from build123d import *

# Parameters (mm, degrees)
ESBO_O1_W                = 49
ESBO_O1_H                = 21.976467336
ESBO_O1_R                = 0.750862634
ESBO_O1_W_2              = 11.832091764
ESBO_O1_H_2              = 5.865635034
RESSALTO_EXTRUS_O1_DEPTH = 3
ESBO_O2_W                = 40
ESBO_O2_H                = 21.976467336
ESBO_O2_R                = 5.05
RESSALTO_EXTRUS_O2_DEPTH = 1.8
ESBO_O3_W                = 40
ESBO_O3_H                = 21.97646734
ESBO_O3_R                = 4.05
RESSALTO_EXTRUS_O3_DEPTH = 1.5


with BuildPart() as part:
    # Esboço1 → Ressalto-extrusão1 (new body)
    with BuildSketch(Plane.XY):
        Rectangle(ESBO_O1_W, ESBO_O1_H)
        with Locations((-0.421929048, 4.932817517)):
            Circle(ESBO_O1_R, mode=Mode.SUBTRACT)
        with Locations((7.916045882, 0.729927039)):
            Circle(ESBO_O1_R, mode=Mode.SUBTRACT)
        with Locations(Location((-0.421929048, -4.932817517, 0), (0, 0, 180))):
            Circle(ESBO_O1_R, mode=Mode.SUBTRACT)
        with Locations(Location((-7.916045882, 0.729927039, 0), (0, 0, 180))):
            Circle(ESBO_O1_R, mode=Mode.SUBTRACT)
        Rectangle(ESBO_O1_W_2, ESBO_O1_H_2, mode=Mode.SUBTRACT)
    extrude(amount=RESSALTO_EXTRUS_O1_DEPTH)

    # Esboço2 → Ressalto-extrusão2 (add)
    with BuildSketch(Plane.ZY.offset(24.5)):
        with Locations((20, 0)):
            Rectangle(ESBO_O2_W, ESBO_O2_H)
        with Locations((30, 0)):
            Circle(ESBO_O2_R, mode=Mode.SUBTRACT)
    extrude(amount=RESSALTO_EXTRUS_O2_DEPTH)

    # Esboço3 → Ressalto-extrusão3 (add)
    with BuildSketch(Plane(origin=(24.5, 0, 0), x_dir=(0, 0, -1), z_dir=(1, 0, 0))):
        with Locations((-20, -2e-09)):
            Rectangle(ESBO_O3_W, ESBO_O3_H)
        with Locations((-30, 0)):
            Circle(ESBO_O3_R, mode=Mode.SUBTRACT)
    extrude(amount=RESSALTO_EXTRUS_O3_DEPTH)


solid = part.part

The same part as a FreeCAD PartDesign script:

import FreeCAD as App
import Part
import Sketcher
from FreeCAD import Vector

doc = App.newDocument("Part")
params = doc.addObject("Spreadsheet::Sheet", "Params")
for row, (alias, value) in enumerate([
    ("sketch1_width", "49 mm"),
    ("pad1_length", "3 mm"),
    ("sketch2_diameter", "10.1 mm"),
    ("sketch2_height", "40 mm"),
    ("pad2_length", "1.8 mm"),
    ("sketch3_diameter", "8.1 mm"),
    ("sketch3_height", "40 mm"),
    ("pad3_length", "1.5 mm"),
], start=1):
    params.set(f"A{row}", alias)
    params.set(f"B{row}", "=" + value)
    params.setAlias(f"B{row}", alias)

body = doc.addObject("PartDesign::Body", "Body")

# Sketch on XY plane
sketch1 = body.newObject("Sketcher::SketchObject", "Sketch")
sketch1.AttachmentSupport = (doc.getObject("XY_Plane"), [""])
sketch1.MapMode = "FlatFace"
sketch1.addGeometry(Part.LineSegment(Vector(-24.5, 11, 0), Vector(-24.5, -11, 0)), False)
sketch1.addGeometry(Part.LineSegment(Vector(-24.5, -11, 0), Vector(24.5, -11, 0)), False)
sketch1.addGeometry(Part.LineSegment(Vector(24.5, -11, 0), Vector(24.5, 11, 0)), False)
sketch1.addGeometry(Part.LineSegment(Vector(24.5, 11, 0), Vector(-24.5, 11, 0)), False)
sketch1.addGeometry(Part.Circle(Vector(-0.4, -4.9, 0), Vector(0, 0, 1), 0.8), False)
sketch1.addGeometry(Part.Circle(Vector(-7.9, 0.7, 0), Vector(0, 0, 1), 0.8), False)
sketch1.addGeometry(Part.Circle(Vector(-0.4, 4.9, 0), Vector(0, 0, 1), 0.8), False)
sketch1.addGeometry(Part.LineSegment(Vector(5.9, -2.9, 0), Vector(-5.9, -2.9, 0)), False)
sketch1.addGeometry(Part.LineSegment(Vector(-5.9, -2.9, 0), Vector(-5.9, 2.9, 0)), False)
sketch1.addGeometry(Part.LineSegment(Vector(-5.9, 2.9, 0), Vector(5.9, 2.9, 0)), False)
sketch1.addGeometry(Part.LineSegment(Vector(5.9, 2.9, 0), Vector(5.9, -2.9, 0)), False)
sketch1.addGeometry(Part.Circle(Vector(7.9, 0.7, 0), Vector(0, 0, 1), 0.8), False)
sketch1.addConstraint(Sketcher.Constraint("Coincident", 0, 2, 1, 1))
sketch1.addConstraint(Sketcher.Constraint("Coincident", 1, 2, 2, 1))
sketch1.addConstraint(Sketcher.Constraint("Coincident", 2, 2, 3, 1))
sketch1.addConstraint(Sketcher.Constraint("Coincident", 3, 2, 0, 1))
sketch1.addConstraint(Sketcher.Constraint("Coincident", 7, 2, 8, 1))
sketch1.addConstraint(Sketcher.Constraint("Coincident", 8, 2, 9, 1))
sketch1.addConstraint(Sketcher.Constraint("Coincident", 9, 2, 10, 1))
sketch1.addConstraint(Sketcher.Constraint("Coincident", 10, 2, 7, 1))
sketch1.addConstraint(Sketcher.Constraint("Vertical", 0))
sketch1.addConstraint(Sketcher.Constraint("Horizontal", 1))
sketch1.addConstraint(Sketcher.Constraint("Vertical", 2))
sketch1.addConstraint(Sketcher.Constraint("Horizontal", 3))
sketch1.addConstraint(Sketcher.Constraint("Horizontal", 7))
sketch1.addConstraint(Sketcher.Constraint("Vertical", 8))
sketch1.addConstraint(Sketcher.Constraint("Horizontal", 9))
sketch1.addConstraint(Sketcher.Constraint("Vertical", 10))
sketch1.addConstraint(Sketcher.Constraint("Equal", 4, 5))
sketch1.addConstraint(Sketcher.Constraint("Equal", 5, 6))
sketch1.addConstraint(Sketcher.Constraint("Equal", 6, 11))
sketch1.addConstraint(Sketcher.Constraint("Symmetric", 0, 2, 2, 2, -1, 1))
sketch1.addConstraint(Sketcher.Constraint("Symmetric", 7, 2, 9, 2, -1, 1))
sketch1.addConstraint(Sketcher.Constraint("Symmetric", 5, 3, 11, 3, -2))
sketch1.addConstraint(Sketcher.Constraint("Symmetric", 4, 3, 6, 3, -1))
sketch1.addConstraint(Sketcher.Constraint("DistanceX", 1, 1, 1, 2, 49.0))
sketch1.addConstraint(Sketcher.Constraint("DistanceX", 5, 3, 7, 2, 2.0))
sketch1.addConstraint(Sketcher.Constraint("DistanceY", 4, 3, 7, 2, 2.0))
sketch1.addConstraint(Sketcher.Constraint("Diameter", 4, 1.501725))
sketch1.addConstraint(Sketcher.Constraint("DistanceX", 7, 2, 7, 1, 11.832092))
sketch1.addConstraint(Sketcher.Constraint("DistanceY", 0, 2, 0, 1, 21.976467))
sketch1.addConstraint(Sketcher.Constraint("DistanceY", 8, 1, 8, 2, 5.865635))
sketch1.addConstraint(Sketcher.Constraint("DistanceX", 4, 3, -1, 1, 0.421929))
sketch1.addConstraint(Sketcher.Constraint("DistanceY", 5, 3, 6, 3, 4.20289))
sketch1.setExpression("Constraints[23]", "Params.sketch1_width")
pad1 = body.newObject("PartDesign::Pad", "Pad")
pad1.Profile = sketch1
pad1.setExpression("Length", "Params.pad1_length")

# Sketch on YZ plane
sketch2 = body.newObject("Sketcher::SketchObject", "Sketch001")
sketch2.AttachmentSupport = (doc.getObject("YZ_Plane"), [""])
sketch2.MapMode = "FlatFace"
sketch2.AttachmentOffset = App.Placement(Vector(0, 0, -24.5), App.Rotation())
sketch2.addGeometry(Part.LineSegment(Vector(11, 0, 0), Vector(-11, 0, 0)), False)
sketch2.addGeometry(Part.LineSegment(Vector(-11, 0, 0), Vector(-11, 40, 0)), False)
sketch2.addGeometry(Part.LineSegment(Vector(-11, 40, 0), Vector(11, 40, 0)), False)
sketch2.addGeometry(Part.LineSegment(Vector(11, 40, 0), Vector(11, 0, 0)), False)
sketch2.addGeometry(Part.Circle(Vector(0, 30, 0), Vector(0, 0, 1), 5), False)
sketch2.addConstraint(Sketcher.Constraint("Coincident", 0, 2, 1, 1))
sketch2.addConstraint(Sketcher.Constraint("Coincident", 1, 2, 2, 1))
sketch2.addConstraint(Sketcher.Constraint("Coincident", 2, 2, 3, 1))
sketch2.addConstraint(Sketcher.Constraint("Coincident", 3, 2, 0, 1))
sketch2.addConstraint(Sketcher.Constraint("Horizontal", 0))
sketch2.addConstraint(Sketcher.Constraint("Vertical", 1))
sketch2.addConstraint(Sketcher.Constraint("Horizontal", 2))
sketch2.addConstraint(Sketcher.Constraint("Vertical", 3))
sketch2.addConstraint(Sketcher.Constraint("Symmetric", 0, 2, 3, 2, -1, 1))
sketch2.addConstraint(Sketcher.Constraint("PointOnObject", 4, 3, -2))
sketch2.addConstraint(Sketcher.Constraint("Diameter", 4, 10.1))
sketch2.addConstraint(Sketcher.Constraint("DistanceY", 1, 1, 1, 2, 40.0))
sketch2.addConstraint(Sketcher.Constraint("DistanceY", -1, 1, 4, 3, 30.0))
sketch2.addConstraint(Sketcher.Constraint("DistanceX", 0, 2, 0, 1, 21.976467))
sketch2.setExpression("Constraints[10]", "Params.sketch2_diameter")
sketch2.setExpression("Constraints[11]", "Params.sketch2_height")
pad2 = body.newObject("PartDesign::Pad", "Pad001")
pad2.Profile = sketch2
pad2.setExpression("Length", "Params.pad2_length")
pad2.Reversed = True

# Sketch on YZ plane
sketch3 = body.newObject("Sketcher::SketchObject", "Sketch002")
sketch3.AttachmentSupport = (doc.getObject("YZ_Plane"), [""])
sketch3.MapMode = "FlatFace"
sketch3.AttachmentOffset = App.Placement(Vector(0, 0, 24.5), App.Rotation())
sketch3.addGeometry(Part.LineSegment(Vector(11, 40, 0), Vector(-11, 40, 0)), False)
sketch3.addGeometry(Part.LineSegment(Vector(-11, 40, 0), Vector(-11, 0, 0)), False)
sketch3.addGeometry(Part.LineSegment(Vector(-11, 0, 0), Vector(11, 0, 0)), False)
sketch3.addGeometry(Part.LineSegment(Vector(11, 0, 0), Vector(11, 40, 0)), False)
sketch3.addGeometry(Part.Circle(Vector(0, 30, 0), Vector(0, 0, 1), 4), False)
sketch3.addConstraint(Sketcher.Constraint("Coincident", 0, 2, 1, 1))
sketch3.addConstraint(Sketcher.Constraint("Coincident", 1, 2, 2, 1))
sketch3.addConstraint(Sketcher.Constraint("Coincident", 2, 2, 3, 1))
sketch3.addConstraint(Sketcher.Constraint("Coincident", 3, 2, 0, 1))
sketch3.addConstraint(Sketcher.Constraint("Horizontal", 0))
sketch3.addConstraint(Sketcher.Constraint("Vertical", 1))
sketch3.addConstraint(Sketcher.Constraint("Horizontal", 2))
sketch3.addConstraint(Sketcher.Constraint("Vertical", 3))
sketch3.addConstraint(Sketcher.Constraint("Symmetric", 1, 2, 2, 2, -1, 1))
sketch3.addConstraint(Sketcher.Constraint("PointOnObject", 4, 3, -2))
sketch3.addConstraint(Sketcher.Constraint("Diameter", 4, 8.1))
sketch3.addConstraint(Sketcher.Constraint("DistanceY", 1, 2, 1, 1, 40.0))
sketch3.addConstraint(Sketcher.Constraint("DistanceY", -1, 1, 4, 3, 30.0))
sketch3.addConstraint(Sketcher.Constraint("DistanceX", 0, 2, 0, 1, 21.976467))
sketch3.setExpression("Constraints[10]", "Params.sketch3_diameter")
sketch3.setExpression("Constraints[11]", "Params.sketch3_height")
pad3 = body.newObject("PartDesign::Pad", "Pad002")
pad3.Profile = sketch3
pad3.setExpression("Length", "Params.pad3_length")

doc.recompute()
